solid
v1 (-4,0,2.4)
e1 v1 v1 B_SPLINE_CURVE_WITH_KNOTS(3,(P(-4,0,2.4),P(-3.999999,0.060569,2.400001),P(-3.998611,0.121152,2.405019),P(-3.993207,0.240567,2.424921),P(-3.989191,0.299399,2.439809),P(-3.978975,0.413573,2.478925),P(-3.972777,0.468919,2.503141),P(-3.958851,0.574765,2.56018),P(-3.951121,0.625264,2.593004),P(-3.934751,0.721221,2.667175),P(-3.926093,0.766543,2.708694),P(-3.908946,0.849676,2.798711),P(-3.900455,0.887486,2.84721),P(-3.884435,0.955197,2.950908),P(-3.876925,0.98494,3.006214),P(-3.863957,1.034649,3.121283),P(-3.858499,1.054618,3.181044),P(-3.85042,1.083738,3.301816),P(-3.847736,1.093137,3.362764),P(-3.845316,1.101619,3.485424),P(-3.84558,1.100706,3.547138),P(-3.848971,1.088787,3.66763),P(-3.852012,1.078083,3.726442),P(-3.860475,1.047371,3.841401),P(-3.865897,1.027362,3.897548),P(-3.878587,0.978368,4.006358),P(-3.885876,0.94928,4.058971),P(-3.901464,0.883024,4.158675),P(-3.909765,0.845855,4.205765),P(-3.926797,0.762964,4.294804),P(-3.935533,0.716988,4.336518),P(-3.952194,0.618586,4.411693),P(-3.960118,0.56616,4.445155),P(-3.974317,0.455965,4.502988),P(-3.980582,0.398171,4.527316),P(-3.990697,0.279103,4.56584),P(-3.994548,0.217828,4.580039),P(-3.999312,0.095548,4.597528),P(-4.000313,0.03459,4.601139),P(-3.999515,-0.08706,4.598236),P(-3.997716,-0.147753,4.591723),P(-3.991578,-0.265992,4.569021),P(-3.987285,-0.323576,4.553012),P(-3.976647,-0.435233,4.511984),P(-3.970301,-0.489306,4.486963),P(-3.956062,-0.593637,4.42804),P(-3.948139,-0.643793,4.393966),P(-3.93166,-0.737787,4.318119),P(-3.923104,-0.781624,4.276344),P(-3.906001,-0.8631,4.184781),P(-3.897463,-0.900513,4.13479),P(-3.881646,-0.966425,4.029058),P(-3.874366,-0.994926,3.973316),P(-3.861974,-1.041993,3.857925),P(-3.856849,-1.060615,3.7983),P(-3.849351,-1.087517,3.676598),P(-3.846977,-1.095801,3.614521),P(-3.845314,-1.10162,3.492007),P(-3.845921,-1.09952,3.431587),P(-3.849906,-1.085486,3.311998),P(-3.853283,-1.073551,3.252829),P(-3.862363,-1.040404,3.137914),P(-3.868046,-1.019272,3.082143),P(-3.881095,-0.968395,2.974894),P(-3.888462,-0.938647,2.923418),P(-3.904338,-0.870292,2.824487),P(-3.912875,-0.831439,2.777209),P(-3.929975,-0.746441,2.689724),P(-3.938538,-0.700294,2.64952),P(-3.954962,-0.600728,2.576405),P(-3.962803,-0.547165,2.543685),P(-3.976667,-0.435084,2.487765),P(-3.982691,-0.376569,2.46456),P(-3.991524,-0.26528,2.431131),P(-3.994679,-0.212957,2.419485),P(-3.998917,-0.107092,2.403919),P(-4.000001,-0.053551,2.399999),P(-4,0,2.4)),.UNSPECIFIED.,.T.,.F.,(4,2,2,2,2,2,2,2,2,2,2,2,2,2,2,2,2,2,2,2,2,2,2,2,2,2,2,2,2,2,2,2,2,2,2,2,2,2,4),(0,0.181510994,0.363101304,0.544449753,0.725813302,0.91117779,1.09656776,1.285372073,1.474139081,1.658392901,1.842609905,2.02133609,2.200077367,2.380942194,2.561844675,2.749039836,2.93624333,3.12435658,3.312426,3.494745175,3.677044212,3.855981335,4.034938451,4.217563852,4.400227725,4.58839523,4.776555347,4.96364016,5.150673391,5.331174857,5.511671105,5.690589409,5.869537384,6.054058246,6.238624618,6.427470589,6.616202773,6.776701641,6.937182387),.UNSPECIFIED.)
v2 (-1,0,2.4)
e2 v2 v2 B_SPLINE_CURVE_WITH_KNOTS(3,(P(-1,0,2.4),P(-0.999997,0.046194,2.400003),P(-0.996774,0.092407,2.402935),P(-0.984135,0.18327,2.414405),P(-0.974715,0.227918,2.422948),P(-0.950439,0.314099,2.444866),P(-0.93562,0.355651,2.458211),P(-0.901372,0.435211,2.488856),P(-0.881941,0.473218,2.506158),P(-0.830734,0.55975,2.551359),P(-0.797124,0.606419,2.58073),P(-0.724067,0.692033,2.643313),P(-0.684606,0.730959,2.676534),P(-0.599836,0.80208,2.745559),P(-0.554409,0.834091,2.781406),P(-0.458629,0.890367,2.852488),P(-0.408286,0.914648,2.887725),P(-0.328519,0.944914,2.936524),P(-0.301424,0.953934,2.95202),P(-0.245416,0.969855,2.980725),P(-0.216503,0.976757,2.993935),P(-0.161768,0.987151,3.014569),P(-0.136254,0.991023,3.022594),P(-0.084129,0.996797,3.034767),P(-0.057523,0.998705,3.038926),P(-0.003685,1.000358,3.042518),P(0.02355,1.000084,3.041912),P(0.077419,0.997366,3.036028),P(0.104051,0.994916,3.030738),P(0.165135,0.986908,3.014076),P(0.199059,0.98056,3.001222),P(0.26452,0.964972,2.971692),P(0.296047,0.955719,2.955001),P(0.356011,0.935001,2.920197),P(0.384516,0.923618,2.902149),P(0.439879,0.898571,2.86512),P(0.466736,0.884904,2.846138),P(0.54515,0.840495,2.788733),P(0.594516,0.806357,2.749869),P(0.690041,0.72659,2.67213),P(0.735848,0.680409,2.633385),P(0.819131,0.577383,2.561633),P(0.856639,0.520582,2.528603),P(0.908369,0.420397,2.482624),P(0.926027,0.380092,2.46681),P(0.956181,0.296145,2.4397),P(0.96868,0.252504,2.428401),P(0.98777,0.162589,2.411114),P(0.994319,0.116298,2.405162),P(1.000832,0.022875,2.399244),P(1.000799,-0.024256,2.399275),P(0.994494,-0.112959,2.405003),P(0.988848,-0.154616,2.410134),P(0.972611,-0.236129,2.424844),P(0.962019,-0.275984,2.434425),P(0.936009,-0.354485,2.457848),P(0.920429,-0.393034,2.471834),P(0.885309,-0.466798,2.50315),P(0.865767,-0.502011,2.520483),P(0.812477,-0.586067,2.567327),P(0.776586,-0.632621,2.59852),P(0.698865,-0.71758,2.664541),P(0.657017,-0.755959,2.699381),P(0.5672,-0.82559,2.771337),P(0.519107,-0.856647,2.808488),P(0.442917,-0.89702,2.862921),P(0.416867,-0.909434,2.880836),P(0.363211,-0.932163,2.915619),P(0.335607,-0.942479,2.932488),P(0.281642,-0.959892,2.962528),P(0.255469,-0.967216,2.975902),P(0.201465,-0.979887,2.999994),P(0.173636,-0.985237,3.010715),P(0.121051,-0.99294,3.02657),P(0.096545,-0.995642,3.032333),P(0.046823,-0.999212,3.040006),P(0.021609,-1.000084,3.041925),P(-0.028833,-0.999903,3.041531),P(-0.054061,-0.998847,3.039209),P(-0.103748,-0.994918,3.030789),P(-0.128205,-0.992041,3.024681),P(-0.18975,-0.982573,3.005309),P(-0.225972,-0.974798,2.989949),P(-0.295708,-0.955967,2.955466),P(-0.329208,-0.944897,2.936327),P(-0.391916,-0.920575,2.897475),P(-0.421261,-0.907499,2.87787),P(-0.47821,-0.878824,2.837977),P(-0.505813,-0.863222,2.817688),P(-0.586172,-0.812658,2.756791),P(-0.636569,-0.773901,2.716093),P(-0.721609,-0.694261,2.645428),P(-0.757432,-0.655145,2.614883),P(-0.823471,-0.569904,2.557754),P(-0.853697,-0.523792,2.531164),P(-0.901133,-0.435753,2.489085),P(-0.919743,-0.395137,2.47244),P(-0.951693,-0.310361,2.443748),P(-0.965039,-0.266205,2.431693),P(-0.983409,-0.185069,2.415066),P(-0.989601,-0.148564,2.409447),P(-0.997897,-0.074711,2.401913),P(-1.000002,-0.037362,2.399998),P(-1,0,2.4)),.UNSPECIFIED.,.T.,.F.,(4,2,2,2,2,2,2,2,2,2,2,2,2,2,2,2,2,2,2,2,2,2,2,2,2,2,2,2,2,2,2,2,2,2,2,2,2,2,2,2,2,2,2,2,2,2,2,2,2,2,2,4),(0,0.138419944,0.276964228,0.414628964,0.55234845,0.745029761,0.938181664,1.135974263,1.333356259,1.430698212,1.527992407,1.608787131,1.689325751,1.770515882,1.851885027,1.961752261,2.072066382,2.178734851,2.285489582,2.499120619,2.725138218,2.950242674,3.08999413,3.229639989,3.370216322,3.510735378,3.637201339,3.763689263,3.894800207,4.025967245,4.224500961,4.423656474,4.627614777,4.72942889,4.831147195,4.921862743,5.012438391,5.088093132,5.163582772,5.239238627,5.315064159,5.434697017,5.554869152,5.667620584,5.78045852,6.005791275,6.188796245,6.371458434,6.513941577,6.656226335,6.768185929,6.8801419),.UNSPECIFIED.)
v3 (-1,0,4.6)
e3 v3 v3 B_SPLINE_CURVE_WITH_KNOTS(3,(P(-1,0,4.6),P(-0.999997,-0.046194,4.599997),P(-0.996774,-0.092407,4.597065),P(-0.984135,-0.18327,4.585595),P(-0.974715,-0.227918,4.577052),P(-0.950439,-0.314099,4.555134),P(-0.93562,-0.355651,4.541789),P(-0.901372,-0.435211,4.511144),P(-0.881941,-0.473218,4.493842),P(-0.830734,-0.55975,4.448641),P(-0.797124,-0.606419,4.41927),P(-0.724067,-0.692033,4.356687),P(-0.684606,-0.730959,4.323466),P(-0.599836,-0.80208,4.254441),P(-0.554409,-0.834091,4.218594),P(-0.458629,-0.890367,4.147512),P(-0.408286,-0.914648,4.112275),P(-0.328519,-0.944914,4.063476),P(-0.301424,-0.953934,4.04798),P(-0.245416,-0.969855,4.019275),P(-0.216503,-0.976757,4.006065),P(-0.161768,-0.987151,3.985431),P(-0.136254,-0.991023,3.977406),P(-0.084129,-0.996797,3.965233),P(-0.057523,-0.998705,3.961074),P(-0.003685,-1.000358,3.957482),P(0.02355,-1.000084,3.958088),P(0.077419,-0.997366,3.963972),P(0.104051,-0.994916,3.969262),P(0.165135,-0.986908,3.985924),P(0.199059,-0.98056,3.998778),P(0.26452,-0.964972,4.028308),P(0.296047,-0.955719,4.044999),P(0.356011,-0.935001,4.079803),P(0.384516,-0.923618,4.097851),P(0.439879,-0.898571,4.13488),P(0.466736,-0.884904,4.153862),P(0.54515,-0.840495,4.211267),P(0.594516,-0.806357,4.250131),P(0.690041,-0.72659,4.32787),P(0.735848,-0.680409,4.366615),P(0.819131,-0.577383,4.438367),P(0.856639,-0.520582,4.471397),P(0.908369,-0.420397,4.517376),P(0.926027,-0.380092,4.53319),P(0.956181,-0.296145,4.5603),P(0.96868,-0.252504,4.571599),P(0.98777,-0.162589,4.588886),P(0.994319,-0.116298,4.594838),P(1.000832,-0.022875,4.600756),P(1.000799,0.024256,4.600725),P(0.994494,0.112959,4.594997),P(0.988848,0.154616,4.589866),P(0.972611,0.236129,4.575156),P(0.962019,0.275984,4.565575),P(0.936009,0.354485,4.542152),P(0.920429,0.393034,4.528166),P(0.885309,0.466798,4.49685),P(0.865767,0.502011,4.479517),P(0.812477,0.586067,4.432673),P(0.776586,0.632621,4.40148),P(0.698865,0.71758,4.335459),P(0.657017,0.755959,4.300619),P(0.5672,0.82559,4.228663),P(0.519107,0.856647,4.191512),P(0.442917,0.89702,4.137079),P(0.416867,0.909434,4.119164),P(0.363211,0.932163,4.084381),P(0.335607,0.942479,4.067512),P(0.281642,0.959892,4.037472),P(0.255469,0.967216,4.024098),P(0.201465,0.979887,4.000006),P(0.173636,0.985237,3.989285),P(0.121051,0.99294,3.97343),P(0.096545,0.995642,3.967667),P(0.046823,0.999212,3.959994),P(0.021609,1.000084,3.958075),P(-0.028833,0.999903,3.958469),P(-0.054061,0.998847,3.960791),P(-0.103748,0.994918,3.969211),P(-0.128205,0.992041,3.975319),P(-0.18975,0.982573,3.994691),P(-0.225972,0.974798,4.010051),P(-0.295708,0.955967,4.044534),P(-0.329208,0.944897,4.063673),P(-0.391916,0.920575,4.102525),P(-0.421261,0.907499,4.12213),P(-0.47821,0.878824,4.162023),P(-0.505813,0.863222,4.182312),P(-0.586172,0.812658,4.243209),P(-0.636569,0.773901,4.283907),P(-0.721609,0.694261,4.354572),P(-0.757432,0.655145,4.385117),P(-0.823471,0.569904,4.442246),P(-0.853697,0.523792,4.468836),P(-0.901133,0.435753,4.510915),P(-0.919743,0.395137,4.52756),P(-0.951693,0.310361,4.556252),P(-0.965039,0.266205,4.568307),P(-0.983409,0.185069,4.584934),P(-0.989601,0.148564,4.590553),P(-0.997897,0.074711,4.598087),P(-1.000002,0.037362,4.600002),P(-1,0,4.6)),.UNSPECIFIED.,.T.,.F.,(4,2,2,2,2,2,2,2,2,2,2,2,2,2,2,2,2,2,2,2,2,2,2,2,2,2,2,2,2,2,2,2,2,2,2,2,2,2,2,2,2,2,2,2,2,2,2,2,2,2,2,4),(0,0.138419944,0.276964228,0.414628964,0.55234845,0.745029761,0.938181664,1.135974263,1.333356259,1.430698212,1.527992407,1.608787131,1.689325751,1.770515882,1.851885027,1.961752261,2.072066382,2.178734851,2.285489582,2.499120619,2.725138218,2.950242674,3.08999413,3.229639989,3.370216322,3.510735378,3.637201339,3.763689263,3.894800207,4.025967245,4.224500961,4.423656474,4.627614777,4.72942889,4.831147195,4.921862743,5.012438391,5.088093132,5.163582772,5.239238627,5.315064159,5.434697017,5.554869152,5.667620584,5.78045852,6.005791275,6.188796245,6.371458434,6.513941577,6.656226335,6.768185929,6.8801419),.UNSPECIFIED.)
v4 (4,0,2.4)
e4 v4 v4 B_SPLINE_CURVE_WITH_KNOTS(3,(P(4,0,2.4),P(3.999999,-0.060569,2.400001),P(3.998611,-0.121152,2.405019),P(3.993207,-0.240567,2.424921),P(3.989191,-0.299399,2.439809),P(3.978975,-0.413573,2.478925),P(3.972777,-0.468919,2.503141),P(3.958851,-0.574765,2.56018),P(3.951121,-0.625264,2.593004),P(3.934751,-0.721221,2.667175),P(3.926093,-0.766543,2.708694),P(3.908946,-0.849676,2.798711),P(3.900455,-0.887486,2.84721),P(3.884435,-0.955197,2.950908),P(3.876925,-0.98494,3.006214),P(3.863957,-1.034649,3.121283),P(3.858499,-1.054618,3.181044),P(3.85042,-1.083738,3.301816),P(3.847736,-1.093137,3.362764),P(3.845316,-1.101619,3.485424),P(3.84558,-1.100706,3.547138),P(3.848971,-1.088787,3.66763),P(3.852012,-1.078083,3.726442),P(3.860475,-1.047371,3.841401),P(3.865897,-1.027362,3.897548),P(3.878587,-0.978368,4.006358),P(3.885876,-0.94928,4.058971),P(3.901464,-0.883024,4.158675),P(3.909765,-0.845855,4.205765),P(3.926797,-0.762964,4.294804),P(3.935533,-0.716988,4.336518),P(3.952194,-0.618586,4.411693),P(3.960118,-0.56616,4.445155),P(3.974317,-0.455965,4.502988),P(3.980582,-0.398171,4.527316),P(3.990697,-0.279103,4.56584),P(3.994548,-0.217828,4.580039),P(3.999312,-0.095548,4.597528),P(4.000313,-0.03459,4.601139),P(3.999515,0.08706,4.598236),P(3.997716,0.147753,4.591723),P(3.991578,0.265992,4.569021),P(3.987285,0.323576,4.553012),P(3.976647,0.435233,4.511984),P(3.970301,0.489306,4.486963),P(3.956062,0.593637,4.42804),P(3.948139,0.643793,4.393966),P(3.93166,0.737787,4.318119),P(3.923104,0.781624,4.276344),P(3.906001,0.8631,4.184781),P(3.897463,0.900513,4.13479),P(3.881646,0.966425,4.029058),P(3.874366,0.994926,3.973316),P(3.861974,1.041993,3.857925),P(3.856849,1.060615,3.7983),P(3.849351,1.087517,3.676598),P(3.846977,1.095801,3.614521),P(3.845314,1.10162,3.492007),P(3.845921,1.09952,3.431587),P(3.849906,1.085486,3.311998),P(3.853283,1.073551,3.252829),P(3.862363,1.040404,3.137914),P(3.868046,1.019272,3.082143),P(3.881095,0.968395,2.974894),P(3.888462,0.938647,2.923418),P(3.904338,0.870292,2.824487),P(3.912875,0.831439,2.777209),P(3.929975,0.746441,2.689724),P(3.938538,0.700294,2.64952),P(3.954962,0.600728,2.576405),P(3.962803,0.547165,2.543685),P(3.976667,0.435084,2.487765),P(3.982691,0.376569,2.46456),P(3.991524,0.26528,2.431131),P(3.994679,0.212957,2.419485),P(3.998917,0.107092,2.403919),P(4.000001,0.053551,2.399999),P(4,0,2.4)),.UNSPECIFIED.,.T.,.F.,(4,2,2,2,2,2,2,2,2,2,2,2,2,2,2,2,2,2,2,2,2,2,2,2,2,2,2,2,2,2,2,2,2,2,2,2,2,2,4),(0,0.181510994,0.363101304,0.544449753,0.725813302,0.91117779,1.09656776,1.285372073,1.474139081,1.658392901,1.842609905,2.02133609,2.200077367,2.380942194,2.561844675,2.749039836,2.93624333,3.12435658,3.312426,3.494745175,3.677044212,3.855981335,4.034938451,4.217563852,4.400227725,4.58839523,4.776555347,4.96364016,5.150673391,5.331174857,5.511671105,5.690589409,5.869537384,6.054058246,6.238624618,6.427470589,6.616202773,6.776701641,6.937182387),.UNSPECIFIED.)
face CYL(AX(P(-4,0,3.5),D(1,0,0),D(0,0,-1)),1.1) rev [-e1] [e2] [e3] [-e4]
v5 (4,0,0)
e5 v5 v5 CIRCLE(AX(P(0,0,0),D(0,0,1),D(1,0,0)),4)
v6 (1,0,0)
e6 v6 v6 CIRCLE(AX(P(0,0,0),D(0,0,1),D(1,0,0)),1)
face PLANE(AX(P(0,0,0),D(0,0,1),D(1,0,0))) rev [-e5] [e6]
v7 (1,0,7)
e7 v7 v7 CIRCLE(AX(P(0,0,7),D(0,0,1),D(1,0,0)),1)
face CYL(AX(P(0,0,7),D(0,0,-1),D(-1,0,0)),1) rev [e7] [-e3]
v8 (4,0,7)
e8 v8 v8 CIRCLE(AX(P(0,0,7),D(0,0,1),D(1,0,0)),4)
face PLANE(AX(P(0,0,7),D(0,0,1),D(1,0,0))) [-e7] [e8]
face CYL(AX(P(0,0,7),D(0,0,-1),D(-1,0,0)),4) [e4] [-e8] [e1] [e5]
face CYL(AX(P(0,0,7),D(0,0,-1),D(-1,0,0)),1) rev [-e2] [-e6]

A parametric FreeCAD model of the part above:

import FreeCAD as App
import Part
import Sketcher

V = App.Vector
Q = App.Units.Quantity

doc = App.newDocument("Part")
params = doc.addObject("Spreadsheet::Sheet", "Params")
for row, (alias, value) in enumerate([
    ("sketch1_diameter", "8 mm"),
    ("sketch1_diameter2", "2 mm"),
    ("pad1_length", "7 mm"),
    ("sketch2_diameter", "2.2 mm"),
], start=1):
    params.set(f"A{row}", alias)
    params.set(f"B{row}", "=" + value)
    params.setAlias(f"B{row}", alias)

body = doc.addObject("PartDesign::Body", "Body")

# Sketch on XY plane
sketch1 = body.newObject("Sketcher::SketchObject", "Sketch")
sketch1.AttachmentSupport = (doc.getObject("XY_Plane"), [""])
sketch1.MapMode = "FlatFace"
sketch1.addGeometry(Part.Circle(V(0, 0, 0), V(0, 0, 1), 4), False)
sketch1.addGeometry(Part.Circle(V(0, 0, 0), V(0, 0, 1), 1), False)
sketch1.addConstraint(Sketcher.Constraint("Coincident", 0, 3, -1, 1))
sketch1.addConstraint(Sketcher.Constraint("Coincident", 1, 3, -1, 1))
sketch1.addConstraint(Sketcher.Constraint("Diameter", 0, Q("8 mm")))
sketch1.addConstraint(Sketcher.Constraint("Diameter", 1, Q("2 mm")))
sketch1.setExpression("Constraints[2]", "Params.sketch1_diameter")
sketch1.setExpression("Constraints[3]", "Params.sketch1_diameter2")
pad1 = body.newObject("PartDesign::Pad", "Pad")
pad1.Profile = sketch1
pad1.setExpression("Length", "Params.pad1_length")

# Sketch on YZ plane
sketch2 = body.newObject("Sketcher::SketchObject", "Sketch001")
sketch2.AttachmentSupport = (doc.getObject("YZ_Plane"), [""])
sketch2.MapMode = "FlatFace"
sketch2.AttachmentOffset = App.Placement(V(0, 0, 4), App.Rotation())
sketch2.addGeometry(Part.Circle(V(0, 3.5, 0), V(0, 0, 1), 1.1), False)
sketch2.addConstraint(Sketcher.Constraint("PointOnObject", 0, 3, -2))
sketch2.addConstraint(Sketcher.Constraint("Diameter", 0, Q("2.2 mm")))
sketch2.addConstraint(Sketcher.Constraint("DistanceY", -1, 1, 0, 3, Q("3.5 mm")))
sketch2.setExpression("Constraints[1]", "Params.sketch2_diameter")
pocket1 = body.newObject("PartDesign::Pocket", "Pocket")
pocket1.Profile = sketch2
pocket1.Type = "ThroughAll"

doc.recompute()
